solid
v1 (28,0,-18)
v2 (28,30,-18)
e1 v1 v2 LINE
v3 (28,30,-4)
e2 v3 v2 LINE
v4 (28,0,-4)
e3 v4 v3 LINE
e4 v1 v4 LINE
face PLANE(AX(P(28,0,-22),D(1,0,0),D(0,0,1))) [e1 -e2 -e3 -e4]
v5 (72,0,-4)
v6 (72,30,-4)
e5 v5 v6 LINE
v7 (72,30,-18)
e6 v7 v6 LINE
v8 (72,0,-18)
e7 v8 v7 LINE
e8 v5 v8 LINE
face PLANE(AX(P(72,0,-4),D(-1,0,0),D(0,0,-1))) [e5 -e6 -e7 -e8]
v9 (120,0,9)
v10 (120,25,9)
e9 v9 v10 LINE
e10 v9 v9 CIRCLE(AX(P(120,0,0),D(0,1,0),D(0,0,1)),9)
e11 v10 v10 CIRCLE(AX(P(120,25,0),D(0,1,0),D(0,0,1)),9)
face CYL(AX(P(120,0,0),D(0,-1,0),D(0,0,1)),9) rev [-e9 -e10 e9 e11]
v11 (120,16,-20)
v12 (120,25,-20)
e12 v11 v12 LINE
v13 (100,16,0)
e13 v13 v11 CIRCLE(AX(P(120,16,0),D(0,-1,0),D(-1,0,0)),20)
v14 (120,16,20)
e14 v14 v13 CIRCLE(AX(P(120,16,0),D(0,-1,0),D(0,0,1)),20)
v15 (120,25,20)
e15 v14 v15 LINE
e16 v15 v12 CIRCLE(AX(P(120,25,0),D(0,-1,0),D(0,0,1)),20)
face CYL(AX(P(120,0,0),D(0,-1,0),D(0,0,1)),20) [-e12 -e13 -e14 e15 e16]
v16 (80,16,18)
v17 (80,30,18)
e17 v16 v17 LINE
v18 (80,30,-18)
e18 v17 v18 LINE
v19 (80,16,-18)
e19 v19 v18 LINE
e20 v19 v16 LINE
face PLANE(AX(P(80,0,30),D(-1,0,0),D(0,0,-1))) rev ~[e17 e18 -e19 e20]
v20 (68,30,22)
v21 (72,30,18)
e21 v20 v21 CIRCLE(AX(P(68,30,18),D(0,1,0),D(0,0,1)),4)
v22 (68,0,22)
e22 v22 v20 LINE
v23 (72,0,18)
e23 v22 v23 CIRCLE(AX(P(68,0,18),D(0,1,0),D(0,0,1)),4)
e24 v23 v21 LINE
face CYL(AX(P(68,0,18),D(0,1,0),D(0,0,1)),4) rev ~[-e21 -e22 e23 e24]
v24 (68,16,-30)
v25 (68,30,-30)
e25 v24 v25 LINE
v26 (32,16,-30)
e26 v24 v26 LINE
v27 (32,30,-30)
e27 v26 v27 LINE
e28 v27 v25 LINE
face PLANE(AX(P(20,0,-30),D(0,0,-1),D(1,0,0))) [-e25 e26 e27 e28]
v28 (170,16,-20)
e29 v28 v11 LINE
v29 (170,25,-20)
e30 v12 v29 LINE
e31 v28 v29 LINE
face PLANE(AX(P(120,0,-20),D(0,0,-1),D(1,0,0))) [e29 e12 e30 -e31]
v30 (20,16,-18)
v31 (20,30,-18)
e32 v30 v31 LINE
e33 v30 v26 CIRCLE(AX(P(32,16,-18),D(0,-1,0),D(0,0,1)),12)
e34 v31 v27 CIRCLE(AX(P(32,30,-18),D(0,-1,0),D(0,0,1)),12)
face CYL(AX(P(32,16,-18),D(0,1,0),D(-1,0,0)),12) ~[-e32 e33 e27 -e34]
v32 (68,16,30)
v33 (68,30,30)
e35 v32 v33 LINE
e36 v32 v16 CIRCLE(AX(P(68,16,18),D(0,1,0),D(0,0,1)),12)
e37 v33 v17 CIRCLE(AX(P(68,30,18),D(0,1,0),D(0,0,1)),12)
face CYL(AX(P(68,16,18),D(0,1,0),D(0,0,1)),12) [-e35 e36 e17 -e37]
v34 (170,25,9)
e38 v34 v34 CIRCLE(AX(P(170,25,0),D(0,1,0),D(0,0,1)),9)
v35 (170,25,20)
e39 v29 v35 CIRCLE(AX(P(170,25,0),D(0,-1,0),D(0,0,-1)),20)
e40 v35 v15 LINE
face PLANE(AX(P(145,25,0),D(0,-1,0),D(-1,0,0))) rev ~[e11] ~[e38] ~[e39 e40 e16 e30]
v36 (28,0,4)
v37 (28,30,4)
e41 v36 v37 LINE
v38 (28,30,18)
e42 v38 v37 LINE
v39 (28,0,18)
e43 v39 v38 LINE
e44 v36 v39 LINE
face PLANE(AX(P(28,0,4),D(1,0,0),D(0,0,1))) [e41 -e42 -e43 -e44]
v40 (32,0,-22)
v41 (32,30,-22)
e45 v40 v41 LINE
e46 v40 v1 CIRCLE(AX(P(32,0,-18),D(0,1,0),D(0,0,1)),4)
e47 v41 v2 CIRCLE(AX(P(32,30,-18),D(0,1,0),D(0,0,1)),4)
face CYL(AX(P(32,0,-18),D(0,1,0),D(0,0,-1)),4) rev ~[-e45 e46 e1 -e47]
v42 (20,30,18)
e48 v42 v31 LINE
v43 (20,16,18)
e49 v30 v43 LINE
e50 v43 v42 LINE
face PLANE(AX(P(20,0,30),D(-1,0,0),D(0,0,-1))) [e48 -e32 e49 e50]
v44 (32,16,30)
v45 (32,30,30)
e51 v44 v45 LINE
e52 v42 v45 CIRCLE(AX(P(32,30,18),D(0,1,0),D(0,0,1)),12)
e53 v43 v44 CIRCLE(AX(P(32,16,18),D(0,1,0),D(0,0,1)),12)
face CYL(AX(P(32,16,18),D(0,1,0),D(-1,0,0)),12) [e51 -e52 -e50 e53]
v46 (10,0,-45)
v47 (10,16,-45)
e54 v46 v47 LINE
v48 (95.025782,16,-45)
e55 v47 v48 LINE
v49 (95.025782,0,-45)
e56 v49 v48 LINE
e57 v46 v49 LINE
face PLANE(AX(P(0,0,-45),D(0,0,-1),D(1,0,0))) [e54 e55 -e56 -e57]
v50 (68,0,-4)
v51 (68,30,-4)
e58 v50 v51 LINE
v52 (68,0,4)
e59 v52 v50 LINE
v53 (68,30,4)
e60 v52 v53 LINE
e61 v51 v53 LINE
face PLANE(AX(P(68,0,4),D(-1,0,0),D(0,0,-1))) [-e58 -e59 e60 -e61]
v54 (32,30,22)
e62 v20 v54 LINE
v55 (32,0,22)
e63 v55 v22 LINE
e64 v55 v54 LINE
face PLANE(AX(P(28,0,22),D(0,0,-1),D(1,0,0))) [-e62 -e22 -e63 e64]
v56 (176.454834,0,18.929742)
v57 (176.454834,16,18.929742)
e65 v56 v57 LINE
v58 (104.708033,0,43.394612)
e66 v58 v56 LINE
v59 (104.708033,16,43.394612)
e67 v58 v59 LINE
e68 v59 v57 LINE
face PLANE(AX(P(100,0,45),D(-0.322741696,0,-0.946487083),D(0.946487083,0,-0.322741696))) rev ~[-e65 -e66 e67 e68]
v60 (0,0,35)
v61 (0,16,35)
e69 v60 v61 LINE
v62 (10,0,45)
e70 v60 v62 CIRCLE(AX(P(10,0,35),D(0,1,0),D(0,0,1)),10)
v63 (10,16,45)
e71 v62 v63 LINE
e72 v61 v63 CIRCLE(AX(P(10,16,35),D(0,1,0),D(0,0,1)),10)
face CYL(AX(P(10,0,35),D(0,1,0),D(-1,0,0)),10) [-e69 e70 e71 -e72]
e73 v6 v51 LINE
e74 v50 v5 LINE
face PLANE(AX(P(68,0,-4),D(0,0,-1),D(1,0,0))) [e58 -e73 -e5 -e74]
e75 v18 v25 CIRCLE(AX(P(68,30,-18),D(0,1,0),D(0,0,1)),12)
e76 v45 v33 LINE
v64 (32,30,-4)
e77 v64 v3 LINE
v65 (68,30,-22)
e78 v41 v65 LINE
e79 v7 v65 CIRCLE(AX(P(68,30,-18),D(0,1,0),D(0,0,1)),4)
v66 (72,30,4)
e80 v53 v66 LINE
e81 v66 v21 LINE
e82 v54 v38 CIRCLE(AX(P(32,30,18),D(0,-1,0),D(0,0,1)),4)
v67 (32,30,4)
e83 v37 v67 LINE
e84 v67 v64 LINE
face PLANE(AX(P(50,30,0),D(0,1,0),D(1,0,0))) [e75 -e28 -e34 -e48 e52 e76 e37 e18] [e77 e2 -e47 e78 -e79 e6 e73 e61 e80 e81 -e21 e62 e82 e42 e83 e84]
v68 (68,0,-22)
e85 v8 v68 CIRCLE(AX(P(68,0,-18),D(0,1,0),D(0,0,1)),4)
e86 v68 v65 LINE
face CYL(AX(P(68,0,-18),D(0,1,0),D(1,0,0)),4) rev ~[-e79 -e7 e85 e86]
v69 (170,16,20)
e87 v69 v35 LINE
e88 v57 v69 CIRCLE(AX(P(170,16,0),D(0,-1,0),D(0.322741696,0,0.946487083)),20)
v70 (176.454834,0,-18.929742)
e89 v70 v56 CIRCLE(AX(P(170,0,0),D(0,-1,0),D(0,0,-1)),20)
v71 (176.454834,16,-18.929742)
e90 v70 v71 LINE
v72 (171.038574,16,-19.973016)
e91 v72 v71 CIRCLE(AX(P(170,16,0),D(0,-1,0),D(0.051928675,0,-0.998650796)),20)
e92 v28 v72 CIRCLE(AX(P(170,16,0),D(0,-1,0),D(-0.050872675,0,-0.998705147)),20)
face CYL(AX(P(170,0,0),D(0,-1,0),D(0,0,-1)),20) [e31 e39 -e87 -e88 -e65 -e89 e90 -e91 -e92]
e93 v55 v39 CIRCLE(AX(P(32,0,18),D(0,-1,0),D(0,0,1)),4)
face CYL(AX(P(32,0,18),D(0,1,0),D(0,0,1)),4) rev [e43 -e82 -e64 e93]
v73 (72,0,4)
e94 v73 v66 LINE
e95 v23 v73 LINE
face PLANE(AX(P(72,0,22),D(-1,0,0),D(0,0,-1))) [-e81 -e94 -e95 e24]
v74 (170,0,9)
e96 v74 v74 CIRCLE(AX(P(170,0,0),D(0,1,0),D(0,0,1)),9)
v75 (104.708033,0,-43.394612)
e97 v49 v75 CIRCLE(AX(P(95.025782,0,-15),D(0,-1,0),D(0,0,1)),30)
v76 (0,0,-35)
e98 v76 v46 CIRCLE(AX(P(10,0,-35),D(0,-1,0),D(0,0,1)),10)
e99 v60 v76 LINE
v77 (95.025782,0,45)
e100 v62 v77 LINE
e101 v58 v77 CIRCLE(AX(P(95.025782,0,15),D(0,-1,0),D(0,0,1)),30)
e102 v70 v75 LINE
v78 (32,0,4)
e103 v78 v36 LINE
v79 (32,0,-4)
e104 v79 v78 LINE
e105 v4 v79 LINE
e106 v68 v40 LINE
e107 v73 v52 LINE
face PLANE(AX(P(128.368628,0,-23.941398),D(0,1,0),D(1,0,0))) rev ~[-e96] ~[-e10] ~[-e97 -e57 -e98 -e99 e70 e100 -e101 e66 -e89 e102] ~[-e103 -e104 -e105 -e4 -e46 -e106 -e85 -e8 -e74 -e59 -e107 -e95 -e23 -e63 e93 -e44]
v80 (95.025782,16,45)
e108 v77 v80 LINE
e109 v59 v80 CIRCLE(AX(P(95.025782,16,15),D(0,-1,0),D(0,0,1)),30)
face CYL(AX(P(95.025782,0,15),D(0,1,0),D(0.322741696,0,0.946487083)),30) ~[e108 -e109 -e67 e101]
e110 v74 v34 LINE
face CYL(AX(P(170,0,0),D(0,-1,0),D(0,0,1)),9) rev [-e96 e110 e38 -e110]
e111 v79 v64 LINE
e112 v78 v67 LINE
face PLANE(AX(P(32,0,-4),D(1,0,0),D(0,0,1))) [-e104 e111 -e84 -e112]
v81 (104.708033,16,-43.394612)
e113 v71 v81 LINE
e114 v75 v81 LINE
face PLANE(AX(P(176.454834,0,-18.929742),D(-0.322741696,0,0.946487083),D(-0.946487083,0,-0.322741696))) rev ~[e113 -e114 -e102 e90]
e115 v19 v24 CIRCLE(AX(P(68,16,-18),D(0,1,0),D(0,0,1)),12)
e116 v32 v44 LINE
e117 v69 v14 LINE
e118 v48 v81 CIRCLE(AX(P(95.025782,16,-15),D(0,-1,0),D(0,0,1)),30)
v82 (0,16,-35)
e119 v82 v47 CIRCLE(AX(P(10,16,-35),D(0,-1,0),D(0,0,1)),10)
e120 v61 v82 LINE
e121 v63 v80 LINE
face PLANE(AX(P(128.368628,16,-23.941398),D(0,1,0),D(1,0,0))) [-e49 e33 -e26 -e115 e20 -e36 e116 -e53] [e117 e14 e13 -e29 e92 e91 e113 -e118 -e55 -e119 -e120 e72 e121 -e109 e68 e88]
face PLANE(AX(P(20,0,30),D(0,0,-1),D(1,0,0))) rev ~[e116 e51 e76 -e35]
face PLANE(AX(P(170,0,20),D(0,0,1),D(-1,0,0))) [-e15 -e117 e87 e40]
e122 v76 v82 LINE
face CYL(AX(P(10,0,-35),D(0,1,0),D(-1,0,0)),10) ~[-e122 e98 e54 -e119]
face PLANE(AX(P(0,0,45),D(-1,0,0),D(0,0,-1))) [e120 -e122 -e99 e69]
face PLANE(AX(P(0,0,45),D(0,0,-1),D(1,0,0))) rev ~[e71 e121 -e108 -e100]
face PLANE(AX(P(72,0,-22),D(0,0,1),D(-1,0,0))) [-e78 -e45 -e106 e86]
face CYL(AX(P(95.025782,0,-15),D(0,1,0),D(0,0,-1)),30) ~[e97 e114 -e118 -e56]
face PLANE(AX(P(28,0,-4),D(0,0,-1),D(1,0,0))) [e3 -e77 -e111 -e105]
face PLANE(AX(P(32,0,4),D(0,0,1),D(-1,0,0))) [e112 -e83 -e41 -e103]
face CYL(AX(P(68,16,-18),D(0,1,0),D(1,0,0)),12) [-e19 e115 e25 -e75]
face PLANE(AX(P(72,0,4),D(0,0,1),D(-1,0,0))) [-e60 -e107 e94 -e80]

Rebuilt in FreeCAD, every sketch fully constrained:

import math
import FreeCAD as App
import Part
import Sketcher
from FreeCAD import Vector
Q = App.Units.Quantity


def edges_at(feature, points):
    """Names of the edges that pass closest to the given points."""
    edges = feature.Shape.Edges
    near = lambda p: min(range(len(edges)), key=lambda i: edges[i].distToShape(Part.Vertex(*p))[0])
    return sorted({f"Edge{near(p) + 1}" for p in points})


def add_polygon(sketch, points):
    """Adds a closed chain of lines whose ends are joined by coincident constraints."""
    first, n = sketch.GeometryCount, len(points)
    for a, b in zip(points, points[1:] + points[:1]):
        sketch.addGeometry(Part.LineSegment(App.Vector(*a, 0), App.Vector(*b, 0)), False)
    for i in range(n):
        sketch.addConstraint(Sketcher.Constraint("Coincident", first + i, 2, first + (i + 1) % n, 1))

doc = App.newDocument("Part")
body = doc.addObject("PartDesign::Body", "Body")

# Sketch on XZ plane
sketch1 = doc.addObject("Sketcher::SketchObject", "Sketch")
body.addObject(sketch1)
sketch1.AttachmentSupport = (doc.XZ_Plane, [""])
sketch1.MapMode = "FlatFace"
add_polygon(sketch1, [(0, -45), (0, 45), (100, 45), (100, -45)])  # lines 0-3
sketch1.addConstraint(Sketcher.Constraint("Vertical", 0))
sketch1.addConstraint(Sketcher.Constraint("Horizontal", 1))
sketch1.addConstraint(Sketcher.Constraint("Vertical", 2))
sketch1.addConstraint(Sketcher.Constraint("Horizontal", 3))
sketch1.addConstraint(Sketcher.Constraint("Symmetric", 0, 2, 3, 2, -1, 1))
sketch1.addConstraint(Sketcher.Constraint("DistanceX", 1, 1, 1, 2, Q("100 mm")))
sketch1.addConstraint(Sketcher.Constraint("DistanceY", 0, 1, 0, 2, Q("90 mm")))
pad1 = doc.addObject("PartDesign::Pad", "Pad")
body.addObject(pad1)
pad1.Profile = sketch1
pad1.Length = 16
pad1.Reversed = True
doc.recompute()

fillet = doc.addObject("PartDesign::Fillet", "Fillet")
body.addObject(fillet)
fillet.Base = (pad1, edges_at(pad1, [(0, 8, -45), (0, 8, 45)]))
fillet.Radius = 10

# Sketch on XZ plane
sketch2 = doc.addObject("Sketcher::SketchObject", "Sketch001")
body.addObject(sketch2)
sketch2.AttachmentSupport = (doc.XZ_Plane, [""])
sketch2.MapMode = "FlatFace"
add_polygon(sketch2, [(20, -30), (20, 30), (80, 30), (80, -30)])  # lines 0-3
sketch2.addConstraint(Sketcher.Constraint("Vertical", 0))
sketch2.addConstraint(Sketcher.Constraint("Horizontal", 1))
sketch2.addConstraint(Sketcher.Constraint("Vertical", 2))
sketch2.addConstraint(Sketcher.Constraint("Horizontal", 3))
sketch2.addConstraint(Sketcher.Constraint("Equal", 3, 0))
sketch2.addConstraint(Sketcher.Constraint("DistanceX", 1, 1, 1, 2, Q("60 mm")))
sketch2.addConstraint(Sketcher.Constraint("DistanceX", -1, 1, 0, 2, Q("20 mm")))
sketch2.addConstraint(Sketcher.Constraint("DistanceY", -1, 1, 0, 2, Q("30 mm")))
pad2 = doc.addObject("PartDesign::Pad", "Pad001")
body.addObject(pad2)
pad2.Profile = sketch2
pad2.Length = 30
pad2.Reversed = True
doc.recompute()

fillet2 = doc.addObject("PartDesign::Fillet", "Fillet001")
body.addObject(fillet2)
fillet2.Base = (pad2, edges_at(pad2, [
    (20, 23, -30),
    (20, 23, 30),
    (80, 23, 30),
    (80, 23, -30),
]))
fillet2.Radius = 12

# Sketch on XZ plane
sketch3 = doc.addObject("Sketcher::SketchObject", "Sketch002")
body.addObject(sketch3)
sketch3.AttachmentSupport = (doc.XZ_Plane, [""])
sketch3.MapMode = "FlatFace"
add_polygon(sketch3, [(28, 4), (28, 22), (72, 22), (72, 4), (68, 4), (68, -4), (72, -4), (72, -22), (28, -22), (28, -4), (32, -4), (32, 4)])  # lines 0-11
sketch3.addConstraint(Sketcher.Constraint("Vertical", 0))
sketch3.addConstraint(Sketcher.Constraint("Horizontal", 1))
sketch3.addConstraint(Sketcher.Constraint("Vertical", 2))
sketch3.addConstraint(Sketcher.Constraint("Horizontal", 3))
sketch3.addConstraint(Sketcher.Constraint("Vertical", 4))
sketch3.addConstraint(Sketcher.Constraint("Horizontal", 5))
sketch3.addConstraint(Sketcher.Constraint("Vertical", 6))
sketch3.addConstraint(Sketcher.Constraint("Horizontal", 7))
sketch3.addConstraint(Sketcher.Constraint("Vertical", 8))
sketch3.addConstraint(Sketcher.Constraint("Horizontal", 9))
sketch3.addConstraint(Sketcher.Constraint("Vertical", 10))
sketch3.addConstraint(Sketcher.Constraint("Horizontal", 11))
sketch3.addConstraint(Sketcher.Constraint("Symmetric", 2, 2, 5, 2, -1))
sketch3.addConstraint(Sketcher.Constraint("Symmetric", 0, 2, 7, 2, -1))
sketch3.addConstraint(Sketcher.Constraint("Horizontal", 5, 2, 8, 2))
sketch3.addConstraint(Sketcher.Constraint("Horizontal", 3, 2, 10, 2))
sketch3.addConstraint(Sketcher.Constraint("Equal", 5, 9))
sketch3.addConstraint(Sketcher.Constraint("DistanceX", 1, 1, 1, 2, Q("44 mm")))
sketch3.addConstraint(Sketcher.Constraint("DistanceX", 3, 2, 3, 1, Q("4 mm")))
sketch3.addConstraint(Sketcher.Constraint("DistanceY", 0, 1, 0, 2, Q("18 mm")))
sketch3.addConstraint(Sketcher.Constraint("DistanceY", 4, 2, 4, 1, Q("8 mm")))
sketch3.addConstraint(Sketcher.Constraint("DistanceX", -1, 1, 0, 2, Q("28 mm")))
pocket1 = doc.addObject("PartDesign::Pocket", "Pocket")
body.addObject(pocket1)
pocket1.Profile = sketch3
pocket1.Length = 46
doc.recompute()

fillet3 = doc.addObject("PartDesign::Fillet", "Fillet002")
body.addObject(fillet3)
fillet3.Base = (pocket1, edges_at(pocket1, [
    (28, 15, -22),
    (28, 15, 22),
    (72, 15, 22),
    (72, 15, -22),
]))
fillet3.Radius = 4

# Sketch on XZ plane
sketch4 = doc.addObject("Sketcher::SketchObject", "Sketch003")
body.addObject(sketch4)
sketch4.AttachmentSupport = (doc.XZ_Plane, [""])
sketch4.MapMode = "FlatFace"
sketch4.addGeometry(Part.ArcOfCircle(Part.Circle(Vector(120, 0, 0), Vector(0, 0, 1), 20), math.radians(180), math.radians(270)), False)
sketch4.addGeometry(Part.LineSegment(Vector(120, -20, 0), Vector(169, -20, 0)), False)
sketch4.addGeometry(Part.ArcOfCircle(Part.Circle(Vector(170, 0, 0), Vector(0, 0, 1), 20), math.radians(-92.92), math.radians(-87.02)), False)
sketch4.addGeometry(Part.ArcOfCircle(Part.Circle(Vector(170, 0, 0), Vector(0, 0, 1), 20), math.radians(-87.02), math.radians(-71.17)), False)
sketch4.addGeometry(Part.LineSegment(Vector(176.5, -18.9, 0), Vector(100, -45, 0)), False)
sketch4.addGeometry(Part.LineSegment(Vector(100, -45, 0), Vector(100, 0, 0)), False)
sketch4.addGeometry(Part.ArcOfCircle(Part.Circle(Vector(120, 0, 0), Vector(0, 0, 1), 20), math.radians(90), math.radians(180)), False)
sketch4.addGeometry(Part.LineSegment(Vector(100, 0, 0), Vector(100, 45, 0)), False)
sketch4.addGeometry(Part.LineSegment(Vector(100, 45, 0), Vector(176.5, 18.9, 0)), False)
sketch4.addGeometry(Part.ArcOfCircle(Part.Circle(Vector(170, 0, 0), Vector(0, 0, 1), 20), math.radians(71.17), math.radians(90)), False)
sketch4.addGeometry(Part.LineSegment(Vector(170, 20, 0), Vector(120, 20, 0)), False)
sketch4.addConstraint(Sketcher.Constraint("Coincident", 0, 2, 1, 1))
sketch4.addConstraint(Sketcher.Constraint("Coincident", 1, 2, 2, 1))
sketch4.addConstraint(Sketcher.Constraint("Tangent", 2, 2, 3, 1))
sketch4.addConstraint(Sketcher.Constraint("Tangent", 3, 2, 4, 1))
sketch4.addConstraint(Sketcher.Constraint("Coincident", 4, 2, 5, 1))
sketch4.addConstraint(Sketcher.Constraint("Tangent", 5, 2, 0, 1))
sketch4.addConstraint(Sketcher.Constraint("Tangent", 6, 2, 7, 1))
sketch4.addConstraint(Sketcher.Constraint("Coincident", 7, 2, 8, 1))
sketch4.addConstraint(Sketcher.Constraint("Tangent", 8, 2, 9, 1))
sketch4.addConstraint(Sketcher.Constraint("Tangent", 9, 2, 10, 1))
sketch4.addConstraint(Sketcher.Constraint("Tangent", 10, 2, 6, 1))
sketch4.addConstraint(Sketcher.Constraint("Vertical", 5))
sketch4.addConstraint(Sketcher.Constraint("Vertical", 7))
sketch4.addConstraint(Sketcher.Constraint("Horizontal", 10))
sketch4.addConstraint(Sketcher.Constraint("Coincident", 6, 3, 0, 3))
sketch4.addConstraint(Sketcher.Constraint("Coincident", 9, 3, 2, 3))
sketch4.addConstraint(Sketcher.Constraint("Equal", 0, 2))
sketch4.addConstraint(Sketcher.Constraint("Equal", 2, 3))
sketch4.addConstraint(Sketcher.Constraint("Equal", 3, 6))
sketch4.addConstraint(Sketcher.Constraint("Equal", 6, 9))
sketch4.addConstraint(Sketcher.Constraint("Symmetric", 3, 2, 8, 2, -1))
sketch4.addConstraint(Sketcher.Constraint("Vertical", 6, 3, 0, 2))
sketch4.addConstraint(Sketcher.Constraint("Radius", 0, Q("20 mm")))
sketch4.addConstraint(Sketcher.Constraint("DistanceX", 10, 2, 10, 1, Q("50 mm")))
sketch4.addConstraint(Sketcher.Constraint("DistanceY", 5, 1, 5, 2, Q("45 mm")))
sketch4.addConstraint(Sketcher.Constraint("DistanceX", -1, 1, 0, 3, Q("120 mm")))
sketch4.addConstraint(Sketcher.Constraint("DistanceX", 2, 2, 3, 2, Q("5.41626 mm")))
sketch4.addConstraint(Sketcher.Constraint("DistanceY", 1, 2, 3, 2, Q("1.044361 mm")))
pad3 = doc.addObject("PartDesign::Pad", "Pad002")
body.addObject(pad3)
pad3.Profile = sketch4
pad3.Length = 16
pad3.Reversed = True

# Sketch on XZ plane
sketch5 = doc.addObject("Sketcher::SketchObject", "Sketch004")
body.addObject(sketch5)
sketch5.AttachmentSupport = (doc.XZ_Plane, [""])
sketch5.MapMode = "FlatFace"
sketch5.addGeometry(Part.LineSegment(Vector(170, -20, 0), Vector(120, -20, 0)), False)
sketch5.addGeometry(Part.ArcOfCircle(Part.Circle(Vector(120, 0, 0), Vector(0, 0, 1), 20), math.radians(90), math.radians(270)), False)
sketch5.addGeometry(Part.LineSegment(Vector(120, 20, 0), Vector(170, 20, 0)), False)
sketch5.addGeometry(Part.ArcOfCircle(Part.Circle(Vector(170, 0, 0), Vector(0, 0, 1), 20), math.radians(-90), math.radians(90)), False)
sketch5.addGeometry(Part.Circle(Vector(170, 0, 0), Vector(0, 0, 1), 9), False)
sketch5.addGeometry(Part.Circle(Vector(120, 0, 0), Vector(0, 0, 1), 9), False)
sketch5.addConstraint(Sketcher.Constraint("Tangent", 0, 2, 1, 2))
sketch5.addConstraint(Sketcher.Constraint("Tangent", 1, 1, 2, 1))
sketch5.addConstraint(Sketcher.Constraint("Tangent", 2, 2, 3, 2))
sketch5.addConstraint(Sketcher.Constraint("Tangent", 3, 1, 0, 1))
sketch5.addConstraint(Sketcher.Constraint("Horizontal", 0))
sketch5.addConstraint(Sketcher.Constraint("Horizontal", 2))
sketch5.addConstraint(Sketcher.Constraint("Coincident", 4, 3, 3, 3))
sketch5.addConstraint(Sketcher.Constraint("Coincident", 5, 3, 1, 3))
sketch5.addConstraint(Sketcher.Constraint("Equal", 4, 5))
sketch5.addConstraint(Sketcher.Constraint("PointOnObject", 1, 3, -1))
sketch5.addConstraint(Sketcher.Constraint("Diameter", 4, Q("18 mm")))
sketch5.addConstraint(Sketcher.Constraint("Radius", 1, Q("20 mm")))
sketch5.addConstraint(Sketcher.Constraint("DistanceX", 0, 2, 0, 1, Q("50 mm")))
sketch5.addConstraint(Sketcher.Constraint("DistanceX", -1, 1, 1, 3, Q("120 mm")))
pad4 = doc.addObject("PartDesign::Pad", "Pad003")
body.addObject(pad4)
pad4.Profile = sketch5
pad4.Length = 25
pad4.Reversed = True
doc.recompute()

fillet4 = doc.addObject("PartDesign::Fillet", "Fillet003")
body.addObject(fillet4)
fillet4.Base = (pad4, edges_at(pad4, [(100, 8, -45), (100, 8, 45)]))
fillet4.Radius = 30

doc.recompute()
